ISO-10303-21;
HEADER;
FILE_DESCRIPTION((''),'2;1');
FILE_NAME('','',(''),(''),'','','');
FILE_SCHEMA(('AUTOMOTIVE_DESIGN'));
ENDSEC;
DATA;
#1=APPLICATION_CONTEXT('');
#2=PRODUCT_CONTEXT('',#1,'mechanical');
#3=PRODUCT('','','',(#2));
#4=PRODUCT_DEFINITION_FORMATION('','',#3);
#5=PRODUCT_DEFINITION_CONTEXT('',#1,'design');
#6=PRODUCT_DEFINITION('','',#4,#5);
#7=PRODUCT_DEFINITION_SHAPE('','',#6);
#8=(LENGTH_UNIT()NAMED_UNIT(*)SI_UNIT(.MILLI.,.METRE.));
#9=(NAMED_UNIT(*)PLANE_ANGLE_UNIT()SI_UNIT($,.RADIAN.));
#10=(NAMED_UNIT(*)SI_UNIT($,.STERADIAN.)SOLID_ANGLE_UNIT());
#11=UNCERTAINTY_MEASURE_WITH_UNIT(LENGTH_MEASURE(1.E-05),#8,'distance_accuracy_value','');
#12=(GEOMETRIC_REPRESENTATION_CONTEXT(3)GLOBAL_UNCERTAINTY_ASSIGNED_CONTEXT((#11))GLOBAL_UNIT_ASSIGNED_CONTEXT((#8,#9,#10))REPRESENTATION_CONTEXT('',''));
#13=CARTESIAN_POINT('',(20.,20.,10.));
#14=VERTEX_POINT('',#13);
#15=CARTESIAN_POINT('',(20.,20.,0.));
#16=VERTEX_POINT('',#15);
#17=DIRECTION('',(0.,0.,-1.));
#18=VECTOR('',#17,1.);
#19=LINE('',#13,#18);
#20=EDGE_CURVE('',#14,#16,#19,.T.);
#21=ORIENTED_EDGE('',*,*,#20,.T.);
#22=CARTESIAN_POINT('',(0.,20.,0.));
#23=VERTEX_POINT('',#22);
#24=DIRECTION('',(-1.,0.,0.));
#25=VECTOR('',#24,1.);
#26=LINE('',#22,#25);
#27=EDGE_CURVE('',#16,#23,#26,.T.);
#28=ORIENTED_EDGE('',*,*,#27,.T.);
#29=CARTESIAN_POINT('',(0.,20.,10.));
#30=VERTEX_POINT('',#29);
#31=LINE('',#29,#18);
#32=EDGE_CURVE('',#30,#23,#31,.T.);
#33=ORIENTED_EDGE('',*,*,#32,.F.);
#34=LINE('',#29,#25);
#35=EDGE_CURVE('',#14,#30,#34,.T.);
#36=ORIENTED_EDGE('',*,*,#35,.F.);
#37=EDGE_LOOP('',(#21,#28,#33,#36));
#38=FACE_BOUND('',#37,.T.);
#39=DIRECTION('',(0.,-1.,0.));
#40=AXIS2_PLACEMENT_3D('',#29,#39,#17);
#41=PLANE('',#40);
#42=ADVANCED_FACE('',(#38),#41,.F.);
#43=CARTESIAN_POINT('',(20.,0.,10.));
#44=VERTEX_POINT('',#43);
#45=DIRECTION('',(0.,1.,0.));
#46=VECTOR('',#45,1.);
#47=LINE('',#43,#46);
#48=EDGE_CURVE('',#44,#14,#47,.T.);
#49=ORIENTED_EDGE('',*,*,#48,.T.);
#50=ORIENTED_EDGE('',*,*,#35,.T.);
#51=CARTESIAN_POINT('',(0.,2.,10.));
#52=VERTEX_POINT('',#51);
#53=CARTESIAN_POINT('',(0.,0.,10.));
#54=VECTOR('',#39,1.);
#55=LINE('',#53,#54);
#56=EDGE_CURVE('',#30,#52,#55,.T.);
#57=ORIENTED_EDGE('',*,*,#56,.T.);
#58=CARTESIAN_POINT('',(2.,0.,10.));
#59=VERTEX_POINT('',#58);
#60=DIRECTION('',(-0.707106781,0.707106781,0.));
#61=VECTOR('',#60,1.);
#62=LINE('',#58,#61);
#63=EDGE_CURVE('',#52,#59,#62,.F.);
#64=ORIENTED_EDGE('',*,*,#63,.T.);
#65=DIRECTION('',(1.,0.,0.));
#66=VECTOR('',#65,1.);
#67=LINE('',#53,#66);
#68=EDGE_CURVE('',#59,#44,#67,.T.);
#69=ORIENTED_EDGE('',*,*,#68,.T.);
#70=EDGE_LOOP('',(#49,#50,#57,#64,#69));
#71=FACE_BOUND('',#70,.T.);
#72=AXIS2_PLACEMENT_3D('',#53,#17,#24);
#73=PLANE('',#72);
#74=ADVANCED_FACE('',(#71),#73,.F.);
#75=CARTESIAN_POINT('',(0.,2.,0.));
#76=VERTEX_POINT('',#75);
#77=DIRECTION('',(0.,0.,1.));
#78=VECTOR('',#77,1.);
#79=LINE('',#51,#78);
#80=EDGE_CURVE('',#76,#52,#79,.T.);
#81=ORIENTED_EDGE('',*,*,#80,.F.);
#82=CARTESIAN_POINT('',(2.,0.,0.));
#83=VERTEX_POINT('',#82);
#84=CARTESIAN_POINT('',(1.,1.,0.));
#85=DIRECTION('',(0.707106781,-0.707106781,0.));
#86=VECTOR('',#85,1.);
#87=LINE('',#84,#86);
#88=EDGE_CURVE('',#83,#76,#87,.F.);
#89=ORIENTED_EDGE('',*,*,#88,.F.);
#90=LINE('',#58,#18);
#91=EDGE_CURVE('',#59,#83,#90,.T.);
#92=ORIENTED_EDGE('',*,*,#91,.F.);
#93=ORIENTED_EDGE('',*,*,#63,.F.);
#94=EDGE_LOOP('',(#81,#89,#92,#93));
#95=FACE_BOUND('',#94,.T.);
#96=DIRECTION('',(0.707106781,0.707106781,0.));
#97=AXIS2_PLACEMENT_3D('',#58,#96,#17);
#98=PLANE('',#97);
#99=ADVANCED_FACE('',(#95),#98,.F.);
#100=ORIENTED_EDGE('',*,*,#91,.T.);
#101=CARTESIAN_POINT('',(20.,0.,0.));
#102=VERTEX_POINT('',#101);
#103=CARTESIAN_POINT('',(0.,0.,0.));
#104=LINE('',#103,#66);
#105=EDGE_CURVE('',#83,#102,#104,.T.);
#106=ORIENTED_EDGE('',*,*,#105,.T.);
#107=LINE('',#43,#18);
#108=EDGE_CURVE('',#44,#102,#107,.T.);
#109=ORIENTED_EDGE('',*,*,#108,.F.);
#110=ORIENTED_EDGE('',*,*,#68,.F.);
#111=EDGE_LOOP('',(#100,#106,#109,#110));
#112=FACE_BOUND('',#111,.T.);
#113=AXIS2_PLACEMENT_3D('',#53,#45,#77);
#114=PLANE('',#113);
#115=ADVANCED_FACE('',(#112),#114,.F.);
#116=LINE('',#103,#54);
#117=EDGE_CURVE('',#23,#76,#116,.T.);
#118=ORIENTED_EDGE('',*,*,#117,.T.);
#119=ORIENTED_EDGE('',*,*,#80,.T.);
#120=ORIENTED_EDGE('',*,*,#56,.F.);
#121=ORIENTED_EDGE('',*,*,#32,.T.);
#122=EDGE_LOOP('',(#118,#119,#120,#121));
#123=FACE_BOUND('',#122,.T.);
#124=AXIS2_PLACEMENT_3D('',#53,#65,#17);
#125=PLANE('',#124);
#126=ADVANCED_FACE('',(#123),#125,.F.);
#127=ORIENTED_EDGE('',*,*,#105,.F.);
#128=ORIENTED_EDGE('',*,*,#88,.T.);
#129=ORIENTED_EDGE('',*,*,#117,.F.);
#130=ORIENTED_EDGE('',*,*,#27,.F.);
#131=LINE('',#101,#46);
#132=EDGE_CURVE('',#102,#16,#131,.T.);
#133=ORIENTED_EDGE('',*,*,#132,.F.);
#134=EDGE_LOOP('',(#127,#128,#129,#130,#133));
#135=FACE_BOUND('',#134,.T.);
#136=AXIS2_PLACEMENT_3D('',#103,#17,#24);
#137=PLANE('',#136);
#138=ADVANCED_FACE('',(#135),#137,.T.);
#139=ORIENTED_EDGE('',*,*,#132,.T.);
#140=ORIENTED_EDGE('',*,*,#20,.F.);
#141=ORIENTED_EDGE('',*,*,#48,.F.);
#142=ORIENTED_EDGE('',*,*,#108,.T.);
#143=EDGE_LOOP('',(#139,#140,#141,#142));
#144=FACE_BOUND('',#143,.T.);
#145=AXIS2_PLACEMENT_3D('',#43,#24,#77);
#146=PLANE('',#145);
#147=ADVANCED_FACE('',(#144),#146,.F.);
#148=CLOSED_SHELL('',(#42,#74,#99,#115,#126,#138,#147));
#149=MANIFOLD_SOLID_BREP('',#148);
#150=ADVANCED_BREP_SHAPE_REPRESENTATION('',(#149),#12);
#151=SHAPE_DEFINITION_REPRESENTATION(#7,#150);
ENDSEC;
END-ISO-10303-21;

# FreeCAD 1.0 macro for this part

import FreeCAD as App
import Part
import Sketcher

V = App.Vector
Q = App.Units.Quantity


def edges_at(feature, points):
    """Names of the edges that pass closest to the given points."""
    edges = feature.Shape.Edges
    near = lambda p: min(range(len(edges)), key=lambda i: edges[i].distToShape(Part.Vertex(*p))[0])
    return sorted({f"Edge{near(p) + 1}" for p in points})

doc = App.newDocument("Part")
body = doc.addObject("PartDesign::Body", "Body")

# Sketch on XY plane
sketch1 = body.newObject("Sketcher::SketchObject", "Sketch")
sketch1.AttachmentSupport = (doc.getObject("XY_Plane"), [""])
sketch1.MapMode = "FlatFace"
sketch1.addGeometry([
    Part.LineSegment(V(0, 20, 0), V(0, 0, 0)),
    Part.LineSegment(V(0, 0, 0), V(20, 0, 0)),
    Part.LineSegment(V(20, 0, 0), V(20, 20, 0)),
    Part.LineSegment(V(20, 20, 0), V(0, 20, 0)),
], False)
sketch1.addConstraint([
    Sketcher.Constraint("Coincident", 0, 2, 1, 1),
    Sketcher.Constraint("Coincident", 1, 2, 2, 1),
    Sketcher.Constraint("Coincident", 2, 2, 3, 1),
    Sketcher.Constraint("Coincident", 3, 2, 0, 1),
    Sketcher.Constraint("Vertical", 0),
    Sketcher.Constraint("Horizontal", 1),
    Sketcher.Constraint("Vertical", 2),
    Sketcher.Constraint("Horizontal", 3),
    Sketcher.Constraint("Coincident", 0, 2, -1, 1),
    Sketcher.Constraint("Equal", 3, 0),
    Sketcher.Constraint("DistanceX", 1, 1, 1, 2, Q("20 mm")),
])
pad1 = body.newObject("PartDesign::Pad", "Pad")
pad1.Profile = sketch1
pad1.Length = 10
doc.recompute()

chamfer = body.newObject("PartDesign::Chamfer", "Chamfer")
chamfer.Base = (pad1, edges_at(pad1, [(0, 0, 5)]))
chamfer.Size = 2

doc.recompute()
